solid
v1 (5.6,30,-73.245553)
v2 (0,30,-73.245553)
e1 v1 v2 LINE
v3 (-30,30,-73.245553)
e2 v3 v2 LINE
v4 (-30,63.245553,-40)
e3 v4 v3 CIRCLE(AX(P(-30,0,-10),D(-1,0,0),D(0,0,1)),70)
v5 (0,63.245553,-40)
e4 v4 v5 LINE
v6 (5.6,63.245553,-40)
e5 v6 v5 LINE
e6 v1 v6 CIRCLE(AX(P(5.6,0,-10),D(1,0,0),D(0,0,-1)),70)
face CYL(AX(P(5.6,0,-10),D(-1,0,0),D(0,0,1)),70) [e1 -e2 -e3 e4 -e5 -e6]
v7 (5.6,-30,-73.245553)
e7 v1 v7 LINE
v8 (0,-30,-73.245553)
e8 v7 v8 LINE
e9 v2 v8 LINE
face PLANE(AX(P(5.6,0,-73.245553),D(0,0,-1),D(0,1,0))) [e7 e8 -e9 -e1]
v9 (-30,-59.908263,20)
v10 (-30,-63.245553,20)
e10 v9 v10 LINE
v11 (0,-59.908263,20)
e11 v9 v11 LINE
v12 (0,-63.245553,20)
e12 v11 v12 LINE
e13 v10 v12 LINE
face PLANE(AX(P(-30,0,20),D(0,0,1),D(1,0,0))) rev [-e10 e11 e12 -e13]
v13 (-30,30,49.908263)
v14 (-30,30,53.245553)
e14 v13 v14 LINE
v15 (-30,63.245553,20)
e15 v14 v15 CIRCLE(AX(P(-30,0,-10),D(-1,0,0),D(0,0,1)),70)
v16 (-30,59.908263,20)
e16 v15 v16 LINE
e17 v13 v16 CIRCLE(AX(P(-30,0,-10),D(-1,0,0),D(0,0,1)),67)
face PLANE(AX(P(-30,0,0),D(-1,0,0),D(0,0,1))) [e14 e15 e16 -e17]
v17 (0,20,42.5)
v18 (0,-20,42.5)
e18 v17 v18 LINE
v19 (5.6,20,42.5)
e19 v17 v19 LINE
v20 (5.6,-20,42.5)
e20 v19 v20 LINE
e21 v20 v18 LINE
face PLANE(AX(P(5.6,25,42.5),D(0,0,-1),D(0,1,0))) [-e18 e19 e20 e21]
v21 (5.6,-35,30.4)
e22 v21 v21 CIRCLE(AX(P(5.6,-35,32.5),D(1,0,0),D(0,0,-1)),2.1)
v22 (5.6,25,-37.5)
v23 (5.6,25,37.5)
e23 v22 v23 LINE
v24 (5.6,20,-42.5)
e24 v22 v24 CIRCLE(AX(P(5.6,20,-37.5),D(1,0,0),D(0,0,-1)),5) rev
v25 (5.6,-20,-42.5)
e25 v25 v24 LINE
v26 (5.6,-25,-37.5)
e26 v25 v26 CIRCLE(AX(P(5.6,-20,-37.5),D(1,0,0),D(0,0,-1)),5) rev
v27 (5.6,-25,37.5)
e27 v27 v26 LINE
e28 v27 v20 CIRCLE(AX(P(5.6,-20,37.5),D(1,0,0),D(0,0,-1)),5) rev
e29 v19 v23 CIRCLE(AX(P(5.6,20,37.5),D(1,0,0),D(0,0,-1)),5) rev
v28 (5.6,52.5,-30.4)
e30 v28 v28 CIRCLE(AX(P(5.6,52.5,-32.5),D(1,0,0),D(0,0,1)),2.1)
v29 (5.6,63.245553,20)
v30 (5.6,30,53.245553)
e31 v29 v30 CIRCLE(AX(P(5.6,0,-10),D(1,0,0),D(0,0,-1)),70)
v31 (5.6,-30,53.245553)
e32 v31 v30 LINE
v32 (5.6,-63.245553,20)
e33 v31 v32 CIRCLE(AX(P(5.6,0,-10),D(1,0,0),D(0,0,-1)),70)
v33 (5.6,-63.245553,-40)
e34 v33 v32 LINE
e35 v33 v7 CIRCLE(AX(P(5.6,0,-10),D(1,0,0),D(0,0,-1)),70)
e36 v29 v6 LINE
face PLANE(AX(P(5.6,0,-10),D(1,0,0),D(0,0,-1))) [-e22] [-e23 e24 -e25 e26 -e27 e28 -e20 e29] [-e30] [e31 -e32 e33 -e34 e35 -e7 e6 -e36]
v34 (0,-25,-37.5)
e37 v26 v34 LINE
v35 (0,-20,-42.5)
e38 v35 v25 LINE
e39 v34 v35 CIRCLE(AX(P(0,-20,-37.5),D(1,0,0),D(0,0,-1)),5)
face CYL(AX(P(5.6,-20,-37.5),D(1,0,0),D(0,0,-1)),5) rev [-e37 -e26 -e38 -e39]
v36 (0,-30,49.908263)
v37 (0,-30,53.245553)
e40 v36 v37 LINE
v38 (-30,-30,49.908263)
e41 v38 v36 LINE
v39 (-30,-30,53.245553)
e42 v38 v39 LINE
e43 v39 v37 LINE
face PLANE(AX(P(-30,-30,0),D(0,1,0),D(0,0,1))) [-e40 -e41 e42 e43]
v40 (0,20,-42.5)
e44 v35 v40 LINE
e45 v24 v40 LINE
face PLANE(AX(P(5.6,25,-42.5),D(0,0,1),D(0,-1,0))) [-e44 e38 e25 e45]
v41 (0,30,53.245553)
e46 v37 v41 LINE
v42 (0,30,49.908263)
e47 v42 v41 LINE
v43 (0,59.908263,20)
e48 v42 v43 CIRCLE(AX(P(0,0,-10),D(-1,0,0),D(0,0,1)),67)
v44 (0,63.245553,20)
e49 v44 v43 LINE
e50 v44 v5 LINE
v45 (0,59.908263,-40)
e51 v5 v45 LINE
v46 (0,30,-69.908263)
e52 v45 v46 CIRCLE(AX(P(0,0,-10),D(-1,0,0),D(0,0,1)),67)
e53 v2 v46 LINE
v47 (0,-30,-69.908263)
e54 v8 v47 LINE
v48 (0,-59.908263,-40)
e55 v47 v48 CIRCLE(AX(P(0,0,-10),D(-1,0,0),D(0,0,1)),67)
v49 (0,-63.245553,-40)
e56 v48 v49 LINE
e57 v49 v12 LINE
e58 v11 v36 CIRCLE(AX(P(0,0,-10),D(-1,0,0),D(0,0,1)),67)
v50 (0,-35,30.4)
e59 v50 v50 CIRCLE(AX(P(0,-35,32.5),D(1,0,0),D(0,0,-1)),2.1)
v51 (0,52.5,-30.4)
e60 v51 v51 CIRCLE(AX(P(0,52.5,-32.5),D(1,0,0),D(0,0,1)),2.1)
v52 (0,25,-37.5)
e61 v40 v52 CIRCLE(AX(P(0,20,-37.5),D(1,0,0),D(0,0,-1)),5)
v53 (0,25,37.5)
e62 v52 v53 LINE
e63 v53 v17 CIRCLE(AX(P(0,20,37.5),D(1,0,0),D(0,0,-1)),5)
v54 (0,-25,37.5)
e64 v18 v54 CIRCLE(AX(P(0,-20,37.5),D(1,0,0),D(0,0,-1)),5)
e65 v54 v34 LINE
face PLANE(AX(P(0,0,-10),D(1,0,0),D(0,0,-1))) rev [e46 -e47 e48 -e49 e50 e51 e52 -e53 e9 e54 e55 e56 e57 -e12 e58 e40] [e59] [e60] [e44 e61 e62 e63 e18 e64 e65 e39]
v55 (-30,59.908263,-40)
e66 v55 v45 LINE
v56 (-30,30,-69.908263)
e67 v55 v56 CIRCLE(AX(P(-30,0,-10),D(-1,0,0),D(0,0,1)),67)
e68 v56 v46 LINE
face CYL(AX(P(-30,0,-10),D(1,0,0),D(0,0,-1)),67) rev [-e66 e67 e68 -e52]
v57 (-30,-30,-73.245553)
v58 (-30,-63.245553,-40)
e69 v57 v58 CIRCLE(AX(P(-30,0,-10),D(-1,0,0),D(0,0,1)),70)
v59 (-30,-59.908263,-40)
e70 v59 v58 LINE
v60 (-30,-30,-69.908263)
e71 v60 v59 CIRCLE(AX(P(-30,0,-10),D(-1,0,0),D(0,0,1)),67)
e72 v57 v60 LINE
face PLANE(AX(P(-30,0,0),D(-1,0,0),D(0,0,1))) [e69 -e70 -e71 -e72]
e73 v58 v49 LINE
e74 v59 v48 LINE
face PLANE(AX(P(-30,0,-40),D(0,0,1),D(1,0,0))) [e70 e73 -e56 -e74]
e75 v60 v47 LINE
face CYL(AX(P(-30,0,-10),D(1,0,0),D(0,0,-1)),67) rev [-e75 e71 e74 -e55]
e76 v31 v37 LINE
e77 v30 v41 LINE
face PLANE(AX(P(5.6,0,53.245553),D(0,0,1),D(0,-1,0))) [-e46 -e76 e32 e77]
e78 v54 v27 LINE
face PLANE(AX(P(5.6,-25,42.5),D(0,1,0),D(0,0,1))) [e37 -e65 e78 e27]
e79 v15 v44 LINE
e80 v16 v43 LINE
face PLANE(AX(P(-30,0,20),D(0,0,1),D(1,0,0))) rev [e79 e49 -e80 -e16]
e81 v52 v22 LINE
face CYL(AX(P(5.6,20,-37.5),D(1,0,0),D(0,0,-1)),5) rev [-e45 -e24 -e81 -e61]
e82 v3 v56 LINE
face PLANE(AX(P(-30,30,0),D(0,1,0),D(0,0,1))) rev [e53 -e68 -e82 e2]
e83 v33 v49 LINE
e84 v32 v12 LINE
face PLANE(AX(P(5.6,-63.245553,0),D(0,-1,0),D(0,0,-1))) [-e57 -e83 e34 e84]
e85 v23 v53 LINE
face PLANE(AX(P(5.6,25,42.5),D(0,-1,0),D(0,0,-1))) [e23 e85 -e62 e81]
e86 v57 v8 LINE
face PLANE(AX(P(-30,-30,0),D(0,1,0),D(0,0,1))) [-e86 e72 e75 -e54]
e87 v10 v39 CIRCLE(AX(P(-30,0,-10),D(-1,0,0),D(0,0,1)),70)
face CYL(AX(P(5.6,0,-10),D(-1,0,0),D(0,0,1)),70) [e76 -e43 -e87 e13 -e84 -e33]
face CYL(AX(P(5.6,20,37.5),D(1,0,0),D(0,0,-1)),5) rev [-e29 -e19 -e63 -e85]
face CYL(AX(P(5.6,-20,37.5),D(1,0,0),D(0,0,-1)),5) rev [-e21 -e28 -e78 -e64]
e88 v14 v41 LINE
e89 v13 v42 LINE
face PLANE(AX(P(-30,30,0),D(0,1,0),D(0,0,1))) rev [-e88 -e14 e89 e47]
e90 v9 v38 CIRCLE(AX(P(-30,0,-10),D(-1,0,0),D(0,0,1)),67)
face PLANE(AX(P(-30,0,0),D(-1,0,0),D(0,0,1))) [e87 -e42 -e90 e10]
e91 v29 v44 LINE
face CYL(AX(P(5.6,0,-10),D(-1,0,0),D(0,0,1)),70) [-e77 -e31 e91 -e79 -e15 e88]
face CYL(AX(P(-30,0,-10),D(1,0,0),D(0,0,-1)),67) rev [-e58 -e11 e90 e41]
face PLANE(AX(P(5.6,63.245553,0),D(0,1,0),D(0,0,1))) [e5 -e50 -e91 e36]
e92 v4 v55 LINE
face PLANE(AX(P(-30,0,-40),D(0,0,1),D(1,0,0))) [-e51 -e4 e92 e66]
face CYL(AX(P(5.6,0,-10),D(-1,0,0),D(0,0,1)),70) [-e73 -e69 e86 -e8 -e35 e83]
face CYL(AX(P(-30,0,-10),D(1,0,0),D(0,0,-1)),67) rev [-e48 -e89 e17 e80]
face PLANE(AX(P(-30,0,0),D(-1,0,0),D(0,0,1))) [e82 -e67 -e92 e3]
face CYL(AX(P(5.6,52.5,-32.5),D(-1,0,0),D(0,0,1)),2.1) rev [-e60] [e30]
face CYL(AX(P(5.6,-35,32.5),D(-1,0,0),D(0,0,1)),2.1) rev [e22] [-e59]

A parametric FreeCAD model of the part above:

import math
import FreeCAD as App
import Part
import Sketcher

V = App.Vector


def edges_at(feature, points):
    """Names of the edges that pass closest to the given points."""
    edges = feature.Shape.Edges
    near = lambda p: min(range(len(edges)), key=lambda i: edges[i].distToShape(Part.Vertex(*p))[0])
    return sorted({f"Edge{near(p) + 1}" for p in points})

doc = App.newDocument("Part")
body = doc.addObject("PartDesign::Body", "Body")

sketch1 = body.newObject("Sketcher::SketchObject", "Sketch")
sketch1.AttachmentSupport = (doc.getObject("YZ_Plane"), [""])
sketch1.MapMode = "FlatFace"
sketch1.addGeometry(Part.Circle(V(0, -10, 0), V(0, 0, 1), 70), False)
sketch1.addGeometry(Part.Circle(V(-35, 32.5, 0), V(0, 0, 1), 2.1), False)
sketch1.addGeometry(Part.LineSegment(V(-25, -42.5, 0), V(-25, 42.5, 0)), False)
sketch1.addGeometry(Part.LineSegment(V(-25, 42.5, 0), V(25, 42.5, 0)), False)
sketch1.addGeometry(Part.LineSegment(V(25, 42.5, 0), V(25, -42.5, 0)), False)
sketch1.addGeometry(Part.LineSegment(V(25, -42.5, 0), V(-25, -42.5, 0)), False)
sketch1.addGeometry(Part.Circle(V(52.5, -32.5, 0), V(0, 0, 1), 2.1), False)
sketch1.addConstraint(Sketcher.Constraint("Coincident", 2, 2, 3, 1))
sketch1.addConstraint(Sketcher.Constraint("Coincident", 3, 2, 4, 1))
sketch1.addConstraint(Sketcher.Constraint("Coincident", 4, 2, 5, 1))
sketch1.addConstraint(Sketcher.Constraint("Coincident", 5, 2, 2, 1))
sketch1.addConstraint(Sketcher.Constraint("Vertical", 2))
sketch1.addConstraint(Sketcher.Constraint("Horizontal", 3))
sketch1.addConstraint(Sketcher.Constraint("Vertical", 4))
sketch1.addConstraint(Sketcher.Constraint("Horizontal", 5))
sketch1.addConstraint(Sketcher.Constraint("Equal", 1, 6))
sketch1.addConstraint(Sketcher.Constraint("Symmetric", 2, 2, 4, 2, -1, 1))
sketch1.addConstraint(Sketcher.Constraint("PointOnObject", 0, 3, -2))
sketch1.addConstraint(Sketcher.Constraint("Diameter", 0, 140.0))
sketch1.addConstraint(Sketcher.Constraint("Diameter", 1, 4.2))
sketch1.addConstraint(Sketcher.Constraint("DistanceX", 3, 1, 3, 2, 50.0))
sketch1.addConstraint(Sketcher.Constraint("DistanceY", 2, 1, 2, 2, 85.0))
sketch1.addConstraint(Sketcher.Constraint("DistanceY", 0, 3, -1, 1, 10.0))
sketch1.addConstraint(Sketcher.Constraint("DistanceX", 1, 3, -1, 1, 35.0))
sketch1.addConstraint(Sketcher.Constraint("DistanceY", 6, 3, 1, 3, 65.0))
sketch1.addConstraint(Sketcher.Constraint("DistanceY", 1, 3, 2, 2, 10.0))
sketch1.addConstraint(Sketcher.Constraint("DistanceX", -1, 1, 6, 3, 52.5))
pad1 = body.newObject("PartDesign::Pad", "Pad")
pad1.Profile = sketch1
pad1.Length = 5.6
doc.recompute()

fillet = body.newObject("PartDesign::Fillet", "Fillet")
fillet.Base = (pad1, edges_at(pad1, [
    (2.8, -25, -42.5),
    (2.8, 25, -42.5),
    (2.8, 25, 42.5),
    (2.8, -25, 42.5),
]))
fillet.Radius = 5

sketch2 = body.newObject("Sketcher::SketchObject", "Sketch001")
sketch2.AttachmentSupport = (doc.getObject("YZ_Plane"), [""])
sketch2.MapMode = "FlatFace"
sketch2.AttachmentOffset = App.Placement(V(0, 0, -30), App.Rotation())
sketch2.addGeometry(Part.ArcOfCircle(Part.Circle(V(0, -10, 0), V(0, 0, 1), 70), math.radians(-64.623066), math.radians(-25.376934)), False)
sketch2.addGeometry(Part.LineSegment(V(30, -73.245553, 0), V(30, -69.908263, 0)), False)
sketch2.addGeometry(Part.ArcOfCircle(Part.Circle(V(0, -10, 0), V(0, 0, 1), 67), math.radians(-63.399865), math.radians(-26.600135)), False)
sketch2.addGeometry(Part.LineSegment(V(59.908263, -40, 0), V(63.245553, -40, 0)), False)
sketch2.addGeometry(Part.ArcOfCircle(Part.Circle(V(0, -10, 0), V(0, 0, 1), 70), math.radians(25.376934), math.radians(64.623066)), False)
sketch2.addGeometry(Part.LineSegment(V(63.245553, 20, 0), V(59.908263, 20, 0)), False)
sketch2.addGeometry(Part.ArcOfCircle(Part.Circle(V(0, -10, 0), V(0, 0, 1), 67), math.radians(26.600135), math.radians(63.399865)), False)
sketch2.addGeometry(Part.LineSegment(V(30, 49.908263, 0), V(30, 53.245553, 0)), False)
sketch2.addGeometry(Part.LineSegment(V(-30, -69.908263, 0), V(-30, -73.245553, 0)), False)
sketch2.addGeometry(Part.ArcOfCircle(Part.Circle(V(0, -10, 0), V(0, 0, 1), 70), math.radians(-154.623066), math.radians(-115.376934)), False)
sketch2.addGeometry(Part.LineSegment(V(-63.245553, -40, 0), V(-59.908263, -40, 0)), False)
sketch2.addGeometry(Part.ArcOfCircle(Part.Circle(V(0, -10, 0), V(0, 0, 1), 67), math.radians(-153.399865), math.radians(-116.600135)), False)
sketch2.addGeometry(Part.LineSegment(V(-59.908263, 20, 0), V(-63.245553, 20, 0)), False)
sketch2.addGeometry(Part.ArcOfCircle(Part.Circle(V(0, -10, 0), V(0, 0, 1), 70), math.radians(115.376934), math.radians(154.623066)), False)
sketch2.addGeometry(Part.LineSegment(V(-30, 53.245553, 0), V(-30, 49.908263, 0)), False)
sketch2.addGeometry(Part.ArcOfCircle(Part.Circle(V(0, -10, 0), V(0, 0, 1), 67), math.radians(116.600135), math.radians(153.399865)), False)
sketch2.addConstraint(Sketcher.Constraint("Coincident", 0, 1, 1, 1))
sketch2.addConstraint(Sketcher.Constraint("Coincident", 1, 2, 2, 1))
sketch2.addConstraint(Sketcher.Constraint("Coincident", 2, 2, 3, 1))
sketch2.addConstraint(Sketcher.Constraint("Coincident", 3, 2, 0, 2))
sketch2.addConstraint(Sketcher.Constraint("Coincident", 4, 1, 5, 1))
sketch2.addConstraint(Sketcher.Constraint("Coincident", 5, 2, 6, 1))
sketch2.addConstraint(Sketcher.Constraint("Coincident", 6, 2, 7, 1))
sketch2.addConstraint(Sketcher.Constraint("Coincident", 7, 2, 4, 2))
sketch2.addConstraint(Sketcher.Constraint("Coincident", 8, 2, 9, 2))
sketch2.addConstraint(Sketcher.Constraint("Coincident", 9, 1, 10, 1))
sketch2.addConstraint(Sketcher.Constraint("Coincident", 10, 2, 11, 1))
sketch2.addConstraint(Sketcher.Constraint("Coincident", 11, 2, 8, 1))
sketch2.addConstraint(Sketcher.Constraint("Coincident", 12, 2, 13, 2))
sketch2.addConstraint(Sketcher.Constraint("Coincident", 13, 1, 14, 1))
sketch2.addConstraint(Sketcher.Constraint("Coincident", 14, 2, 15, 1))
sketch2.addConstraint(Sketcher.Constraint("Coincident", 15, 2, 12, 1))
sketch2.addConstraint(Sketcher.Constraint("Vertical", 1))
sketch2.addConstraint(Sketcher.Constraint("Horizontal", 3))
sketch2.addConstraint(Sketcher.Constraint("Horizontal", 5))
sketch2.addConstraint(Sketcher.Constraint("Vertical", 7))
sketch2.addConstraint(Sketcher.Constraint("Vertical", 8))
sketch2.addConstraint(Sketcher.Constraint("Horizontal", 10))
sketch2.addConstraint(Sketcher.Constraint("Horizontal", 12))
sketch2.addConstraint(Sketcher.Constraint("Vertical", 14))
sketch2.addConstraint(Sketcher.Constraint("Coincident", 2, 3, 0, 3))
sketch2.addConstraint(Sketcher.Constraint("Coincident", 4, 3, 0, 3))
sketch2.addConstraint(Sketcher.Constraint("Coincident", 6, 3, 0, 3))
sketch2.addConstraint(Sketcher.Constraint("Coincident", 9, 3, 0, 3))
sketch2.addConstraint(Sketcher.Constraint("Coincident", 11, 3, 0, 3))
sketch2.addConstraint(Sketcher.Constraint("Coincident", 13, 3, 0, 3))
sketch2.addConstraint(Sketcher.Constraint("Coincident", 15, 3, 0, 3))
sketch2.addConstraint(Sketcher.Constraint("Equal", 0, 4))
sketch2.addConstraint(Sketcher.Constraint("Equal", 2, 6))
sketch2.addConstraint(Sketcher.Constraint("Equal", 4, 9))
sketch2.addConstraint(Sketcher.Constraint("Equal", 6, 11))
sketch2.addConstraint(Sketcher.Constraint("Equal", 9, 13))
sketch2.addConstraint(Sketcher.Constraint("Equal", 11, 15))
sketch2.addConstraint(Sketcher.Constraint("Symmetric", 0, 1, 8, 2, -2))
sketch2.addConstraint(Sketcher.Constraint("Horizontal", 3, 2, 9, 1))
sketch2.addConstraint(Sketcher.Constraint("Horizontal", 5, 2, 12, 2))
sketch2.addConstraint(Sketcher.Constraint("Horizontal", 7, 2, 13, 1))
sketch2.addConstraint(Sketcher.Constraint("Vertical", 3, 2, 4, 1))
sketch2.addConstraint(Sketcher.Constraint("Vertical", 1, 2, 6, 2))
sketch2.addConstraint(Sketcher.Constraint("Equal", 12, 1))
sketch2.addConstraint(Sketcher.Constraint("Radius", 0, 70.0))
sketch2.addConstraint(Sketcher.Constraint("Radius", 2, 67.0))
sketch2.addConstraint(Sketcher.Constraint("DistanceY", 0, 3, -1, 1, 10.0))
sketch2.addConstraint(Sketcher.Constraint("DistanceX", -1, 1, 0, 1, 30.0))
pad2 = body.newObject("PartDesign::Pad", "Pad001")
pad2.Profile = sketch2
pad2.Length = 30

sketch3 = body.newObject("Sketcher::SketchObject", "Sketch002")
sketch3.AttachmentSupport = (doc.getObject("YZ_Plane"), [""])
sketch3.MapMode = "FlatFace"
sketch3.addGeometry(Part.LineSegment(V(63.245553, -40, 0), V(63.245553, 20, 0)), False)
sketch3.addGeometry(Part.ArcOfCircle(Part.Circle(V(0, -10, 0), V(0, 0, 1), 70), math.radians(-25.376934), math.radians(25.376934)), False)
sketch3.addGeometry(Part.LineSegment(V(-30, -73.245553, 0), V(30, -73.245553, 0)), False)
sketch3.addGeometry(Part.ArcOfCircle(Part.Circle(V(0, -10, 0), V(0, 0, 1), 70), math.radians(-115.376934), math.radians(-64.623066)), False)
sketch3.addGeometry(Part.LineSegment(V(-63.245553, 20, 0), V(-63.245553, -40, 0)), False)
sketch3.addGeometry(Part.ArcOfCircle(Part.Circle(V(0, -10, 0), V(0, 0, 1), 70), math.radians(154.623066), math.radians(205.376934)), False)
sketch3.addGeometry(Part.LineSegment(V(30, 53.245553, 0), V(-30, 53.245553, 0)), False)
sketch3.addGeometry(Part.ArcOfCircle(Part.Circle(V(0, -10, 0), V(0, 0, 1), 70), math.radians(64.623066), math.radians(115.376934)), False)
sketch3.addConstraint(Sketcher.Constraint("Coincident", 0, 1, 1, 1))
sketch3.addConstraint(Sketcher.Constraint("Coincident", 1, 2, 0, 2))
sketch3.addConstraint(Sketcher.Constraint("Coincident", 2, 1, 3, 1))
sketch3.addConstraint(Sketcher.Constraint("Coincident", 3, 2, 2, 2))
sketch3.addConstraint(Sketcher.Constraint("Coincident", 4, 1, 5, 1))
sketch3.addConstraint(Sketcher.Constraint("Coincident", 5, 2, 4, 2))
sketch3.addConstraint(Sketcher.Constraint("Coincident", 6, 1, 7, 1))
sketch3.addConstraint(Sketcher.Constraint("Coincident", 7, 2, 6, 2))
sketch3.addConstraint(Sketcher.Constraint("Vertical", 0))
sketch3.addConstraint(Sketcher.Constraint("Horizontal", 2))
sketch3.addConstraint(Sketcher.Constraint("Vertical", 4))
sketch3.addConstraint(Sketcher.Constraint("Horizontal", 6))
sketch3.addConstraint(Sketcher.Constraint("Coincident", 3, 3, 1, 3))
sketch3.addConstraint(Sketcher.Constraint("Coincident", 5, 3, 1, 3))
sketch3.addConstraint(Sketcher.Constraint("Coincident", 7, 3, 1, 3))
sketch3.addConstraint(Sketcher.Constraint("Equal", 1, 3))
sketch3.addConstraint(Sketcher.Constraint("Equal", 3, 5))
sketch3.addConstraint(Sketcher.Constraint("Equal", 5, 7))
sketch3.addConstraint(Sketcher.Constraint("Symmetric", 1, 2, 4, 1, -2))
sketch3.addConstraint(Sketcher.Constraint("Vertical", 3, 2, 6, 1))
sketch3.addConstraint(Sketcher.Constraint("Equal", 6, 0))
sketch3.addConstraint(Sketcher.Constraint("Radius", 1, 70.0))
sketch3.addConstraint(Sketcher.Constraint("DistanceX", 2, 1, 2, 2, 60.0))
sketch3.addConstraint(Sketcher.Constraint("DistanceY", 1, 3, -1, 1, 10.0))
pocket1 = body.newObject("PartDesign::Pocket", "Pocket")
pocket1.Profile = sketch3
pocket1.Type = "ThroughAll"
pocket1.Reversed = True

doc.recompute()
